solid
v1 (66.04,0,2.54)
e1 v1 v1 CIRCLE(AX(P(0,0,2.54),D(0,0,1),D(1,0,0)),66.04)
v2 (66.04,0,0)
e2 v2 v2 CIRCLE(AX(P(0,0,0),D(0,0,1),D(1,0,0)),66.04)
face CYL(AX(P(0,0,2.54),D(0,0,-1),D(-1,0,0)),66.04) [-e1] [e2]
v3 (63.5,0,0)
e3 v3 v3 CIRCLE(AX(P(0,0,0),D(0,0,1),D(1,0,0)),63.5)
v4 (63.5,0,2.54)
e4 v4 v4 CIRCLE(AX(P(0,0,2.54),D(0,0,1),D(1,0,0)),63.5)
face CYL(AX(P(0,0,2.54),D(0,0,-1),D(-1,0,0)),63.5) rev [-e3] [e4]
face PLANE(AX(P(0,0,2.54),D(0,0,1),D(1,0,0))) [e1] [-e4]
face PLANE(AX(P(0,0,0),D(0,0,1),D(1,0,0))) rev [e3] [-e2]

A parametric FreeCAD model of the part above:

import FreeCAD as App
import Part
import Sketcher
Q = App.Units.Quantity

doc = App.newDocument("Part")
body = doc.addObject("PartDesign::Body", "Body")

sketch1 = body.newObject("Sketcher::SketchObject", "Sketch")
sketch1.AttachmentSupport = (doc.getObject("XY_Plane"), [""])
sketch1.MapMode = "FlatFace"
sketch1.addGeometry(Part.Circle(App.Vector(0, 0, 0), App.Vector(0, 0, 1), 66), False)
sketch1.addGeometry(Part.Circle(App.Vector(0, 0, 0), App.Vector(0, 0, 1), 64), False)
sketch1.addConstraint(Sketcher.Constraint("Coincident", 0, 3, -1, 1))
sketch1.addConstraint(Sketcher.Constraint("Coincident", 1, 3, -1, 1))
sketch1.addConstraint(Sketcher.Constraint("Diameter", 1, Q("5 in")))
sketch1.addConstraint(Sketcher.Constraint("Diameter", 0, Q("5.2 in")))
pad1 = body.newObject("PartDesign::Pad", "Pad")
pad1.Profile = sketch1
pad1.Length = Q("0.1 in")

doc.recompute()
